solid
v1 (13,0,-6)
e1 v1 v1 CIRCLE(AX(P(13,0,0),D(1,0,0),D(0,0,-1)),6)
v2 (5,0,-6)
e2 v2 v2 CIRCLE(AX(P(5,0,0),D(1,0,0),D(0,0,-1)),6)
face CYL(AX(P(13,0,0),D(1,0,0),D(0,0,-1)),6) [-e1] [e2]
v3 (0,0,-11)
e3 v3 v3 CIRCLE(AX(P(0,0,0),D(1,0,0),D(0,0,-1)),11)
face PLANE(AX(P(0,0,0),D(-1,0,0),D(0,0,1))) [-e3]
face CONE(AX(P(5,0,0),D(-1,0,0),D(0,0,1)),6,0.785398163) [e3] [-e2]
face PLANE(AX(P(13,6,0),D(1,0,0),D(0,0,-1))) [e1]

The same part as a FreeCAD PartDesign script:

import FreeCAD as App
import Part
import Sketcher

V = App.Vector

doc = App.newDocument("Part")
body = doc.addObject("PartDesign::Body", "Body")

# Sketch on XY plane
sketch1 = doc.addObject("Sketcher::SketchObject", "Sketch")
body.addObject(sketch1)
sketch1.AttachmentSupport = (doc.XY_Plane, [""])
sketch1.MapMode = "FlatFace"
sketch1.addGeometry(Part.LineSegment(V(0, 11, 0), V(0, 0, 0)), False)
sketch1.addGeometry(Part.LineSegment(V(0, 0, 0), V(13, 0, 0)), False)
sketch1.addGeometry(Part.LineSegment(V(13, 0, 0), V(13, 6, 0)), False)
sketch1.addGeometry(Part.LineSegment(V(13, 6, 0), V(5, 6, 0)), False)
sketch1.addGeometry(Part.LineSegment(V(5, 6, 0), V(0, 11, 0)), False)
sketch1.addConstraint(Sketcher.Constraint("Coincident", 0, 2, 1, 1))
sketch1.addConstraint(Sketcher.Constraint("Coincident", 1, 2, 2, 1))
sketch1.addConstraint(Sketcher.Constraint("Coincident", 2, 2, 3, 1))
sketch1.addConstraint(Sketcher.Constraint("Coincident", 3, 2, 4, 1))
sketch1.addConstraint(Sketcher.Constraint("Coincident", 4, 2, 0, 1))
sketch1.addConstraint(Sketcher.Constraint("Vertical", 0))
sketch1.addConstraint(Sketcher.Constraint("Horizontal", 1))
sketch1.addConstraint(Sketcher.Constraint("Vertical", 2))
sketch1.addConstraint(Sketcher.Constraint("Horizontal", 3))
sketch1.addConstraint(Sketcher.Constraint("Coincident", 0, 2, -1, 1))
sketch1.addConstraint(Sketcher.Constraint("DistanceX", 1, 1, 1, 2, 13.0))
sketch1.addConstraint(Sketcher.Constraint("DistanceX", 3, 2, 3, 1, 8.0))
sketch1.addConstraint(Sketcher.Constraint("DistanceY", 0, 2, 0, 1, 11.0))
sketch1.addConstraint(Sketcher.Constraint("DistanceY", 2, 1, 2, 2, 6.0))
revolution = doc.addObject("PartDesign::Revolution", "Revolution")
body.addObject(revolution)
revolution.Profile = sketch1
revolution.ReferenceAxis = (sketch1, ["H_Axis"])
revolution.Angle = 360

doc.recompute()
